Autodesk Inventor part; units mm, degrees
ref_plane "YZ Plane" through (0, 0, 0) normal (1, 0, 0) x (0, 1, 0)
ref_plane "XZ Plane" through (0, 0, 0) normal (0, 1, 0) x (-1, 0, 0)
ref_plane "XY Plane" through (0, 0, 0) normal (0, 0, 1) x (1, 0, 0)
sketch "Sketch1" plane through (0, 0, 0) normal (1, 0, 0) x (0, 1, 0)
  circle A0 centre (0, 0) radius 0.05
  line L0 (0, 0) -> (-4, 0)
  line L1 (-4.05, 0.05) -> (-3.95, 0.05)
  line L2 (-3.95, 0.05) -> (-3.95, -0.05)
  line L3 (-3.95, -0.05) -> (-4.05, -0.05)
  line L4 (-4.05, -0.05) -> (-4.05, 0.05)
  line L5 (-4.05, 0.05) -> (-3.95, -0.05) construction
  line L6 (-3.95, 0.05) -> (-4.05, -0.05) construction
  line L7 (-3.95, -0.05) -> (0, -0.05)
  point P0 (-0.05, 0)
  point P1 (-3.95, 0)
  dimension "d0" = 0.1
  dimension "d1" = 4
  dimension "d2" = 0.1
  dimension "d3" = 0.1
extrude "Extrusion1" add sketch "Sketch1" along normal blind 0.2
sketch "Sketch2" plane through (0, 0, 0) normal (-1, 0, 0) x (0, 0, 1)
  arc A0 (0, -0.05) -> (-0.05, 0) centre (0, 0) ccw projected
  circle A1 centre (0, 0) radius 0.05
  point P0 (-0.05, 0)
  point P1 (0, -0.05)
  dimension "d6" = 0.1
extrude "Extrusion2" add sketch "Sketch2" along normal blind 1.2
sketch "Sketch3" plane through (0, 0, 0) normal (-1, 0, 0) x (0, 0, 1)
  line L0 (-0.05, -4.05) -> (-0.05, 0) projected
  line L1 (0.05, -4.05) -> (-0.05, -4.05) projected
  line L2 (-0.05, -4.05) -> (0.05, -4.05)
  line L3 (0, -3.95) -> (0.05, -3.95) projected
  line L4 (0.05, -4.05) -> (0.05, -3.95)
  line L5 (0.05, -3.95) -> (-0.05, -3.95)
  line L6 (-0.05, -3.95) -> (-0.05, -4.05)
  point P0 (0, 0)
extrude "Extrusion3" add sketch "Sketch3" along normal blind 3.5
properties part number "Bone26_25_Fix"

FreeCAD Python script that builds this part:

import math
import FreeCAD as App
import Part
import Sketcher
from FreeCAD import Vector
Q = App.Units.Quantity

doc = App.newDocument("Part")
params = doc.addObject("Spreadsheet::Sheet", "Params")
for row, (alias, value) in enumerate([
    ("sketch1_radius", "0.05 mm"),
    ("sketch1_width", "0.1 mm"),
    ("pad1_length", "0.2 mm"),
    ("sketch2_diameter", "0.1 mm"),
    ("pad2_length", "1.2 mm"),
    ("sketch3_width", "0.1 mm"),
    ("pad3_length", "3.5 mm"),
], start=1):
    params.set(f"A{row}", alias)
    params.set(f"B{row}", "=" + value)
    params.setAlias(f"B{row}", alias)

body = doc.addObject("PartDesign::Body", "Body")

# Sketch on YZ plane
sketch1 = doc.addObject("Sketcher::SketchObject", "Sketch")
body.addObject(sketch1)
sketch1.AttachmentSupport = (doc.YZ_Plane, [""])
sketch1.MapMode = "FlatFace"
sketch1.addGeometry([
    Part.LineSegment(Vector(-0.05, 0, 0), Vector(-3.95, 0, 0)),  # 0
    Part.LineSegment(Vector(-3.95, 0, 0), Vector(-3.95, 0.05, 0)),  # 1
    Part.LineSegment(Vector(-3.95, 0.05, 0), Vector(-4.05, 0.05, 0)),  # 2
    Part.LineSegment(Vector(-4.05, 0.05, 0), Vector(-4.05, -0.05, 0)),  # 3
    Part.LineSegment(Vector(-4.05, -0.05, 0), Vector(0, -0.05, 0)),  # 4
    Part.ArcOfCircle(Part.Circle(Vector(0, 0, 0), Vector(0, 0, 1), 0.05), math.radians(-90), math.radians(180)),  # 5
], False)
sketch1.addConstraint([
    Sketcher.Constraint("Coincident", 0, 2, 1, 1),
    Sketcher.Constraint("Coincident", 1, 2, 2, 1),
    Sketcher.Constraint("Coincident", 2, 2, 3, 1),
    Sketcher.Constraint("Coincident", 3, 2, 4, 1),
    Sketcher.Constraint("Tangent", 4, 2, 5, 1),
    Sketcher.Constraint("Coincident", 5, 2, 0, 1),
    Sketcher.Constraint("Horizontal", 0),
    Sketcher.Constraint("Vertical", 1),
    Sketcher.Constraint("Horizontal", 2),
    Sketcher.Constraint("Vertical", 3),
    Sketcher.Constraint("Horizontal", 4),
    Sketcher.Constraint("Coincident", 5, 3, -1, 1),
    Sketcher.Constraint("PointOnObject", 0, 2, -1),
    Sketcher.Constraint("Equal", 2, 3),
    Sketcher.Constraint("Radius", 5, Q("0.05 mm")),
    Sketcher.Constraint("DistanceX", 2, 2, 2, 1, Q("0.1 mm")),
    Sketcher.Constraint("DistanceX", 2, 2, 5, 2, Q("4 mm")),
])
sketch1.setExpression("Constraints[14]", "Params.sketch1_radius")
sketch1.setExpression("Constraints[15]", "Params.sketch1_width")
pad1 = doc.addObject("PartDesign::Pad", "Pad")
body.addObject(pad1)
pad1.Profile = sketch1
pad1.setExpression("Length", "Params.pad1_length")

# Sketch on YZ plane
sketch2 = doc.addObject("Sketcher::SketchObject", "Sketch001")
body.addObject(sketch2)
sketch2.AttachmentSupport = (doc.YZ_Plane, [""])
sketch2.MapMode = "FlatFace"
sketch2.addGeometry(Part.Circle(Vector(0, 0, 0), Vector(0, 0, 1), 0.05), False)
sketch2.addConstraint([
    Sketcher.Constraint("Coincident", 0, 3, -1, 1),
    Sketcher.Constraint("Diameter", 0, Q("0.1 mm")),
])
sketch2.setExpression("Constraints[1]", "Params.sketch2_diameter")
pad2 = doc.addObject("PartDesign::Pad", "Pad001")
body.addObject(pad2)
pad2.Profile = sketch2
pad2.setExpression("Length", "Params.pad2_length")
pad2.Reversed = True

# Sketch on YZ plane
sketch3 = doc.addObject("Sketcher::SketchObject", "Sketch002")
body.addObject(sketch3)
sketch3.AttachmentSupport = (doc.YZ_Plane, [""])
sketch3.MapMode = "FlatFace"
sketch3.addGeometry([
    Part.LineSegment(Vector(-3.95, -0.05, 0), Vector(-4.05, -0.05, 0)),
    Part.LineSegment(Vector(-4.05, -0.05, 0), Vector(-4.05, 0.05, 0)),
    Part.LineSegment(Vector(-4.05, 0.05, 0), Vector(-3.95, 0.05, 0)),
    Part.LineSegment(Vector(-3.95, 0.05, 0), Vector(-3.95, -0.05, 0)),
], False)
sketch3.addConstraint([
    Sketcher.Constraint("Coincident", 0, 2, 1, 1),
    Sketcher.Constraint("Coincident", 1, 2, 2, 1),
    Sketcher.Constraint("Coincident", 2, 2, 3, 1),
    Sketcher.Constraint("Coincident", 3, 2, 0, 1),
    Sketcher.Constraint("Horizontal", 0),
    Sketcher.Constraint("Vertical", 1),
    Sketcher.Constraint("Horizontal", 2),
    Sketcher.Constraint("Vertical", 3),
    Sketcher.Constraint("Equal", 2, 1),
    Sketcher.Constraint("DistanceX", 0, 2, 0, 1, Q("0.1 mm")),
    Sketcher.Constraint("DistanceX", 0, 2, -1, 1, Q("4.05 mm")),
    Sketcher.Constraint("DistanceY", 0, 2, -1, 1, Q("0.05 mm")),
])
sketch3.setExpression("Constraints[9]", "Params.sketch3_width")
pad3 = doc.addObject("PartDesign::Pad", "Pad002")
body.addObject(pad3)
pad3.Profile = sketch3
pad3.setExpression("Length", "Params.pad3_length")
pad3.Reversed = True

doc.recompute()
